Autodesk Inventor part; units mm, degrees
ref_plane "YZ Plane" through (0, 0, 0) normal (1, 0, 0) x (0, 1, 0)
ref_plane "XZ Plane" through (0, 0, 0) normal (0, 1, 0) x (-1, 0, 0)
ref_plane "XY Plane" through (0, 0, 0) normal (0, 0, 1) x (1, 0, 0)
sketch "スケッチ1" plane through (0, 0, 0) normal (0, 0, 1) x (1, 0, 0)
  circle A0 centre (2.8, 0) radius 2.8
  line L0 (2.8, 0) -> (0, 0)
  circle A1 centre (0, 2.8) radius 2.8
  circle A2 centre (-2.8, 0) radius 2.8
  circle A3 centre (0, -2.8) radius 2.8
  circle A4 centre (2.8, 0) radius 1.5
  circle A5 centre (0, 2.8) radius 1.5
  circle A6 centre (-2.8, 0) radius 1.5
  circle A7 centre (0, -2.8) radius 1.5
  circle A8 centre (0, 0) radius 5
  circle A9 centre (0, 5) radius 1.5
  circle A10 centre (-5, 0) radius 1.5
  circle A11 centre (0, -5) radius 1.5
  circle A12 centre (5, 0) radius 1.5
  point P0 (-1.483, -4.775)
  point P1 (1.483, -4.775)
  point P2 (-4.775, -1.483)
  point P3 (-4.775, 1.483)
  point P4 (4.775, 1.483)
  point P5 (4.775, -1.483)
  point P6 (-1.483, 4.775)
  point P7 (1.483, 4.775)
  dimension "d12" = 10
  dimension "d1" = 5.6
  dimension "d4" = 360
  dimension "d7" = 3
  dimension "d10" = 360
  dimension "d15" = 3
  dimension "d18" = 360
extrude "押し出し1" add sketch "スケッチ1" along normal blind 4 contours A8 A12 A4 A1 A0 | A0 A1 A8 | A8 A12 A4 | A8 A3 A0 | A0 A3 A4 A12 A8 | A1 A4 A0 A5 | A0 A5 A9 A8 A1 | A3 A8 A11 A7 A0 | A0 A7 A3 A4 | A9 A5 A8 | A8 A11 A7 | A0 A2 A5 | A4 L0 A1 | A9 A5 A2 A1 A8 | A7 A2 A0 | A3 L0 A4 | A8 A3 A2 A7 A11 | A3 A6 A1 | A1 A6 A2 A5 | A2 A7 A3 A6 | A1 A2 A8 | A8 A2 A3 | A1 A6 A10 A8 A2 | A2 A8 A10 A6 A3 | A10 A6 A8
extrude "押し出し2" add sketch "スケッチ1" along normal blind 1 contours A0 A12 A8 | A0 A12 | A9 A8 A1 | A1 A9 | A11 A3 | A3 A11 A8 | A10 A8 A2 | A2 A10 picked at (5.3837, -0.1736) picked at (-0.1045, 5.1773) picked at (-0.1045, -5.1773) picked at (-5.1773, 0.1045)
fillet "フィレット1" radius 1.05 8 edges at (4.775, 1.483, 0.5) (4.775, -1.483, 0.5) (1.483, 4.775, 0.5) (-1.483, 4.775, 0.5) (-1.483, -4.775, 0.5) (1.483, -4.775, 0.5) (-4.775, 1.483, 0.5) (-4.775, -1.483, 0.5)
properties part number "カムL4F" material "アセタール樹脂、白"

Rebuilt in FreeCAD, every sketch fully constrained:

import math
import FreeCAD as App
import Part
import Sketcher


def edges_at(feature, points):
    """Names of the edges that pass closest to the given points."""
    edges = feature.Shape.Edges
    near = lambda p: min(range(len(edges)), key=lambda i: edges[i].distToShape(Part.Vertex(*p))[0])
    return sorted({f"Edge{near(p) + 1}" for p in points})

doc = App.newDocument("Part")
params = doc.addObject("Spreadsheet::Sheet", "Params")
for row, (alias, value) in enumerate([
    ("sketch1_diameter", "10 mm"),
    ("sketch1_diameter2", "3 mm"),
    ("pad1_length", "4 mm"),
    ("sketch2_radius", "5 mm"),
    ("sketch2_radius2", "1.5 mm"),
    ("pad2_length", "1 mm"),
    ("fillet_radius", "1.05 mm"),
], start=1):
    params.set(f"A{row}", alias)
    params.set(f"B{row}", "=" + value)
    params.setAlias(f"B{row}", alias)

body = doc.addObject("PartDesign::Body", "Body")

sketch1 = doc.addObject("Sketcher::SketchObject", "Sketch")
body.addObject(sketch1)
sketch1.AttachmentSupport = (doc.XY_Plane, [""])
sketch1.MapMode = "FlatFace"
sketch1.addGeometry([
    Part.Circle(App.Vector(0, 0, 0), App.Vector(0, 0, 1), 5),
    Part.Circle(App.Vector(2.8, 0, 0), App.Vector(0, 0, 1), 1.5),
    Part.Circle(App.Vector(0, 2.8, 0), App.Vector(0, 0, 1), 1.5),
    Part.Circle(App.Vector(0, -2.8, 0), App.Vector(0, 0, 1), 1.5),
    Part.Circle(App.Vector(-2.8, 0, 0), App.Vector(0, 0, 1), 1.5),
], False)
sketch1.addConstraint([
    Sketcher.Constraint("Coincident", 0, 3, -1, 1),
    Sketcher.Constraint("Equal", 1, 2),
    Sketcher.Constraint("Equal", 2, 3),
    Sketcher.Constraint("Equal", 3, 4),
    Sketcher.Constraint("Symmetric", 2, 3, 3, 3, -1, 1),
    Sketcher.Constraint("Symmetric", 1, 3, 4, 3, -1, 1),
    Sketcher.Constraint("PointOnObject", 1, 3, -1),
    Sketcher.Constraint("PointOnObject", 2, 3, -2),
    Sketcher.Constraint("Diameter", 0, 10.0),
    Sketcher.Constraint("Diameter", 1, 3.0),
    Sketcher.Constraint("DistanceY", 3, 3, 2, 3, 5.6),
    Sketcher.Constraint("DistanceX", 4, 3, 1, 3, 5.6),
])
sketch1.setExpression("Constraints[8]", "Params.sketch1_diameter")
sketch1.setExpression("Constraints[9]", "Params.sketch1_diameter2")
pad1 = doc.addObject("PartDesign::Pad", "Pad")
body.addObject(pad1)
pad1.Profile = sketch1
pad1.setExpression("Length", "Params.pad1_length")

sketch2 = doc.addObject("Sketcher::SketchObject", "Sketch001")
body.addObject(sketch2)
sketch2.AttachmentSupport = (doc.XY_Plane, [""])
sketch2.MapMode = "FlatFace"
sketch2.addGeometry([
    Part.ArcOfCircle(Part.Circle(App.Vector(5, 0, 0), App.Vector(0, 0, 1), 1.5), math.radians(-99), math.radians(99)),
    Part.ArcOfCircle(Part.Circle(App.Vector(0, 0, 0), App.Vector(0, 0, 1), 5), math.radians(-17), math.radians(17)),
    Part.ArcOfCircle(Part.Circle(App.Vector(0, 0, 0), App.Vector(0, 0, 1), 5), math.radians(73), math.radians(107)),
    Part.ArcOfCircle(Part.Circle(App.Vector(0, 5, 0), App.Vector(0, 0, 1), 1.5), math.radians(-9), math.radians(189)),
    Part.ArcOfCircle(Part.Circle(App.Vector(0, 0, 0), App.Vector(0, 0, 1), 5), math.radians(-107), math.radians(-73)),
    Part.ArcOfCircle(Part.Circle(App.Vector(0, -5, 0), App.Vector(0, 0, 1), 1.5), math.radians(171), math.radians(369)),
    Part.ArcOfCircle(Part.Circle(App.Vector(-5, 0, 0), App.Vector(0, 0, 1), 1.5), math.radians(81), math.radians(279)),
    Part.ArcOfCircle(Part.Circle(App.Vector(0, 0, 0), App.Vector(0, 0, 1), 5), math.radians(163), math.radians(197)),
], False)
sketch2.addConstraint([
    Sketcher.Constraint("Coincident", 0, 1, 1, 1),
    Sketcher.Constraint("Coincident", 1, 2, 0, 2),
    Sketcher.Constraint("Coincident", 2, 1, 3, 1),
    Sketcher.Constraint("Coincident", 3, 2, 2, 2),
    Sketcher.Constraint("Coincident", 4, 1, 5, 1),
    Sketcher.Constraint("Coincident", 5, 2, 4, 2),
    Sketcher.Constraint("Coincident", 6, 1, 7, 1),
    Sketcher.Constraint("Coincident", 7, 2, 6, 2),
    Sketcher.Constraint("Coincident", 1, 3, -1, 1),
    Sketcher.Constraint("Coincident", 2, 3, -1, 1),
    Sketcher.Constraint("Coincident", 4, 3, -1, 1),
    Sketcher.Constraint("Coincident", 7, 3, -1, 1),
    Sketcher.Constraint("Equal", 1, 2),
    Sketcher.Constraint("Equal", 0, 3),
    Sketcher.Constraint("Equal", 2, 4),
    Sketcher.Constraint("Equal", 3, 5),
    Sketcher.Constraint("Equal", 5, 6),
    Sketcher.Constraint("Equal", 4, 7),
    Sketcher.Constraint("Symmetric", 3, 3, 5, 3, -1, 1),
    Sketcher.Constraint("Symmetric", 0, 3, 6, 3, -1, 1),
    Sketcher.Constraint("PointOnObject", 0, 3, -1),
    Sketcher.Constraint("PointOnObject", 3, 3, -2),
    Sketcher.Constraint("Radius", 1, 5.0),
    Sketcher.Constraint("Radius", 0, 1.5),
    Sketcher.Constraint("DistanceY", 5, 3, 3, 3, 10.0),
    Sketcher.Constraint("DistanceX", -1, 1, 0, 3, 5.0),
])
sketch2.setExpression("Constraints[22]", "Params.sketch2_radius")
sketch2.setExpression("Constraints[23]", "Params.sketch2_radius2")
pad2 = doc.addObject("PartDesign::Pad", "Pad001")
body.addObject(pad2)
pad2.Profile = sketch2
pad2.setExpression("Length", "Params.pad2_length")
doc.recompute()

fillet = doc.addObject("PartDesign::Fillet", "Fillet")
body.addObject(fillet)
fillet.Base = (pad2, edges_at(pad2, [
    (4.775, 1.483, 0.5),
    (4.775, -1.483, 0.5),
    (1.483, 4.775, 0.5),
    (-1.483, 4.775, 0.5),
    (-1.483, -4.775, 0.5),
    (1.483, -4.775, 0.5),
    (-4.775, 1.483, 0.5),
    (-4.775, -1.483, 0.5),
]))
fillet.setExpression("Radius", "Params.fillet_radius")

doc.recompute()
